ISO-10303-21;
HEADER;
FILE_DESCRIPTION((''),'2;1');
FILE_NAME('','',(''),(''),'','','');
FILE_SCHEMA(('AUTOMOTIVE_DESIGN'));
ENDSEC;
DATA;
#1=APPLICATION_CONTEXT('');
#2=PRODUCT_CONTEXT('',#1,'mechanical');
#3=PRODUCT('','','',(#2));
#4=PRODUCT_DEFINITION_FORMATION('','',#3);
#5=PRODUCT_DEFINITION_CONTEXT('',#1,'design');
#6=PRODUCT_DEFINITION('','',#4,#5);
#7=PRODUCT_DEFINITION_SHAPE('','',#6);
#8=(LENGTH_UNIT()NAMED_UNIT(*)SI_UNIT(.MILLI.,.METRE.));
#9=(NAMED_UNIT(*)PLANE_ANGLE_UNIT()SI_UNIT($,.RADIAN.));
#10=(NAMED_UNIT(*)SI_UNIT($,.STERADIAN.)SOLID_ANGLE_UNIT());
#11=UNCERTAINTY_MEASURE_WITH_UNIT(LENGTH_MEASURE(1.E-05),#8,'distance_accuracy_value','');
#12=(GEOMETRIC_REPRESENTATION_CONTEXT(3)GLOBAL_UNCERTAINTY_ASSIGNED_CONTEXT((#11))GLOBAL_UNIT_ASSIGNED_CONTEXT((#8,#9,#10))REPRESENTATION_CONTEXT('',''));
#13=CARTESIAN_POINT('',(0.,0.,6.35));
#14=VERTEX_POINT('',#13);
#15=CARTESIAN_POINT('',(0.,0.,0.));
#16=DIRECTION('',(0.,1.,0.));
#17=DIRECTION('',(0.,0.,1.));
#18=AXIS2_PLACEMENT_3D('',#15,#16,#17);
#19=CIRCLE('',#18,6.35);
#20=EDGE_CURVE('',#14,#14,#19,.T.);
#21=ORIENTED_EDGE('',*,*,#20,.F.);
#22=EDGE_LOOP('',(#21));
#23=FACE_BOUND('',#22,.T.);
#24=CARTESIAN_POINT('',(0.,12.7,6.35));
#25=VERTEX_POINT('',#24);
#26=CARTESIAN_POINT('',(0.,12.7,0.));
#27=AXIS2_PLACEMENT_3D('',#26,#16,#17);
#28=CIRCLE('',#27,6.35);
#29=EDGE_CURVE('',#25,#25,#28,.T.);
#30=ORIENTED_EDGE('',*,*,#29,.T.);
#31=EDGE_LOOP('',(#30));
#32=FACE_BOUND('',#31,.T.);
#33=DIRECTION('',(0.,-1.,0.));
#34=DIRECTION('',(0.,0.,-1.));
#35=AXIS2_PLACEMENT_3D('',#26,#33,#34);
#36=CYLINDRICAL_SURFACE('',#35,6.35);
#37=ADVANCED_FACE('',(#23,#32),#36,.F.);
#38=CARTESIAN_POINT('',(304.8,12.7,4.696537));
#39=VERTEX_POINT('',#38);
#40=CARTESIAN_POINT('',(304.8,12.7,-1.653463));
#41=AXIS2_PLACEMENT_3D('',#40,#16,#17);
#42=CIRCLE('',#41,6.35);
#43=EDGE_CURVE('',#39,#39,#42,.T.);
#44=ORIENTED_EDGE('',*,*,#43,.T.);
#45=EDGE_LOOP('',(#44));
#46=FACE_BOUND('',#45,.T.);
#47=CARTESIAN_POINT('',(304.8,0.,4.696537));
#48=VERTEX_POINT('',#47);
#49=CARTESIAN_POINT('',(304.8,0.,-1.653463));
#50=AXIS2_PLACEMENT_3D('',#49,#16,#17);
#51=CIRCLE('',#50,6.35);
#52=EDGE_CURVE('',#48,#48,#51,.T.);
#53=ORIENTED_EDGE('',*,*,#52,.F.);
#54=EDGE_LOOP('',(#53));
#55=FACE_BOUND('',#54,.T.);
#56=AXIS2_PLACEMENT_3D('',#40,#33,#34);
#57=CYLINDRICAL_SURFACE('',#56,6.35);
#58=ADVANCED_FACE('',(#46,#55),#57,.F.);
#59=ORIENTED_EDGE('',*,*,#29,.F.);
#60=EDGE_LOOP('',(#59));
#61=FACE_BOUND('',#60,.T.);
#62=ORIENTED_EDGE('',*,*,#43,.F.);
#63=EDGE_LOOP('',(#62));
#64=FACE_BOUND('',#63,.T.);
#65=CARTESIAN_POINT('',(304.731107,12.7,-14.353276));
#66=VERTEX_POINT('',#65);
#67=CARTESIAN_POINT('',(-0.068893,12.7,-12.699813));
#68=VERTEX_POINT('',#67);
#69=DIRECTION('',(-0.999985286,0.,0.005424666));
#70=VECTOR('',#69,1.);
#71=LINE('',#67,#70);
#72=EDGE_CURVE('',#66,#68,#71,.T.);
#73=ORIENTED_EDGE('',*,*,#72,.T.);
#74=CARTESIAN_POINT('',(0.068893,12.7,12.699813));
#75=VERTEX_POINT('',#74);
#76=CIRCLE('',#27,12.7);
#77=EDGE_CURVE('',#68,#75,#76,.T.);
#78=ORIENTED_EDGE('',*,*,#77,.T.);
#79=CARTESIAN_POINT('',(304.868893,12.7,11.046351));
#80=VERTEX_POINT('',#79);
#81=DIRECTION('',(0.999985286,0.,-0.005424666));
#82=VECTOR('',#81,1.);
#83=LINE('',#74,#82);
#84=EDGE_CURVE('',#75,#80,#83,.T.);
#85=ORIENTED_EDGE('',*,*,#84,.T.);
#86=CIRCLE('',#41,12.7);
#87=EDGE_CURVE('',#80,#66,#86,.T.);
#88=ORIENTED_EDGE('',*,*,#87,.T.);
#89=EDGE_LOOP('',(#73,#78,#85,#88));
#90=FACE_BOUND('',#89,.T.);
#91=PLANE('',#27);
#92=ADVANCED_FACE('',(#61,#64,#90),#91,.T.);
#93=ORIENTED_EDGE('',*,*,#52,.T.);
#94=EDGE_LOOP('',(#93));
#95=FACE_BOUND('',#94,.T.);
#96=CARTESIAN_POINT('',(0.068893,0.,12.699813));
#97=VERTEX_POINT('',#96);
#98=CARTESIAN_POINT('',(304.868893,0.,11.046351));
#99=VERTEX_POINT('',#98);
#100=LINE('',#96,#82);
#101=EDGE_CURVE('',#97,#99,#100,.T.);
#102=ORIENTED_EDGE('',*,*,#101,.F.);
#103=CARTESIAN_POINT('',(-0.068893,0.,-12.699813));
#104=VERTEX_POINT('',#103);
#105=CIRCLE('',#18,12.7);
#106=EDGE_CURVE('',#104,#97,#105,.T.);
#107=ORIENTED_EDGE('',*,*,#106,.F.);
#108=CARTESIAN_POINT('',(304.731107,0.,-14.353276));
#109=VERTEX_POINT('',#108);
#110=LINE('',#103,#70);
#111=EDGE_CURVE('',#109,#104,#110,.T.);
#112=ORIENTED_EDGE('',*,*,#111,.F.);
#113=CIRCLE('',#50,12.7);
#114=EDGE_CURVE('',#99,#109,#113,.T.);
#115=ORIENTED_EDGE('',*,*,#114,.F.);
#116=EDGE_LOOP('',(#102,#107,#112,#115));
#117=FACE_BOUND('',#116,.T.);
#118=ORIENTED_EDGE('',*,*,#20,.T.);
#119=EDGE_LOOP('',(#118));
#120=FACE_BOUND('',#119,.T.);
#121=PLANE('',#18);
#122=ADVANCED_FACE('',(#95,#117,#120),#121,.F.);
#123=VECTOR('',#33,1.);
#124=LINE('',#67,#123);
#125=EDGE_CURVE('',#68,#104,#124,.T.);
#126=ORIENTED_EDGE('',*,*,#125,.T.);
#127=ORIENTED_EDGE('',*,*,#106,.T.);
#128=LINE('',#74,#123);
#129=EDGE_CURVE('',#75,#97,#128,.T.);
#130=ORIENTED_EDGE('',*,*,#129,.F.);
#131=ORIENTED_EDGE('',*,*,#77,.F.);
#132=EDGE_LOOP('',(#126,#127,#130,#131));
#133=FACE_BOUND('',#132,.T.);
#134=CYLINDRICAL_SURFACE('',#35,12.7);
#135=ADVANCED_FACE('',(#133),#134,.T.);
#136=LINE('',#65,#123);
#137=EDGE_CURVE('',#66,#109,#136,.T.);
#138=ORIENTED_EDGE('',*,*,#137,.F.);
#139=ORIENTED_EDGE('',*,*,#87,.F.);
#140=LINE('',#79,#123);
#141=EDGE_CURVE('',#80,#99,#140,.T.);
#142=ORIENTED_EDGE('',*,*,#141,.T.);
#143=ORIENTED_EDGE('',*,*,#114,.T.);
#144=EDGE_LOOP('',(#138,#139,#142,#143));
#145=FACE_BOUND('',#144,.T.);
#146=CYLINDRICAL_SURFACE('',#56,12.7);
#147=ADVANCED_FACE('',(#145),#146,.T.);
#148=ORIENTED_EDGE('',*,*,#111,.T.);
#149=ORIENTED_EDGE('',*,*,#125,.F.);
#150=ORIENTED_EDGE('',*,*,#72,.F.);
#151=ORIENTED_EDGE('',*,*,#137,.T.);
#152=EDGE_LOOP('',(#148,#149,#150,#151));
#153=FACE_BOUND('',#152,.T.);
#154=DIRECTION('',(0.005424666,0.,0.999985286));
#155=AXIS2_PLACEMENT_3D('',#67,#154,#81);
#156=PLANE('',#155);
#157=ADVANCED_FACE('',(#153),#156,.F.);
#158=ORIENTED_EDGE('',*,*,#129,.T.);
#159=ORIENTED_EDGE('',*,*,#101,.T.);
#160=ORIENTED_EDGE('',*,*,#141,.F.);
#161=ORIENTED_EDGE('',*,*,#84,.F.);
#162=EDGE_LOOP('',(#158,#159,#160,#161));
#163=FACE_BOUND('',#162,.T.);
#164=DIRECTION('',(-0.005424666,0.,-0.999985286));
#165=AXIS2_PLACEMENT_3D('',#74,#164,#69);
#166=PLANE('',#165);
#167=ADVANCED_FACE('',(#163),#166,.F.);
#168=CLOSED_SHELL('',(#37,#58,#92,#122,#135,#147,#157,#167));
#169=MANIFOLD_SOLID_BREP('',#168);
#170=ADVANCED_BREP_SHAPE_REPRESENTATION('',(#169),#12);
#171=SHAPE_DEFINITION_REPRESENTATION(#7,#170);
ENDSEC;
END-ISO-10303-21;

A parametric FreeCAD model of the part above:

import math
import FreeCAD as App
import Part
import Sketcher

V = App.Vector
Q = App.Units.Quantity

doc = App.newDocument("Part")
body = doc.addObject("PartDesign::Body", "Body")

sketch1 = body.newObject("Sketcher::SketchObject", "Sketch")
sketch1.AttachmentSupport = (doc.getObject("XZ_Plane"), [""])
sketch1.MapMode = "FlatFace"
sketch1.addGeometry([
    Part.LineSegment(V(305, -14, 0), V(0, -13, 0)),
    Part.ArcOfCircle(Part.Circle(V(0, 0, 0), V(0, 0, 1), 13), math.radians(90), math.radians(270)),
    Part.LineSegment(V(0, 13, 0), V(305, 11, 0)),
    Part.ArcOfCircle(Part.Circle(V(305, -2, 0), V(0, 0, 1), 13), math.radians(-90), math.radians(90)),
    Part.Circle(V(0, 0, 0), V(0, 0, 1), 6),
    Part.Circle(V(305, -2, 0), V(0, 0, 1), 6),
], False)
sketch1.addConstraint([
    Sketcher.Constraint("Tangent", 0, 2, 1, 2),
    Sketcher.Constraint("Tangent", 1, 1, 2, 1),
    Sketcher.Constraint("Tangent", 2, 2, 3, 2),
    Sketcher.Constraint("Tangent", 3, 1, 0, 1),
    Sketcher.Constraint("Coincident", 1, 3, -1, 1),
    Sketcher.Constraint("Coincident", 4, 3, -1, 1),
    Sketcher.Constraint("Coincident", 5, 3, 3, 3),
    Sketcher.Constraint("Equal", 1, 3),
    Sketcher.Constraint("Equal", 4, 5),
    Sketcher.Constraint("Diameter", 4, Q("0.5 in")),
    Sketcher.Constraint("Radius", 1, Q("0.5 in")),
    Sketcher.Constraint("DistanceX", -1, 1, 3, 3, Q("12 in")),
    Sketcher.Constraint("DistanceY", -1, 1, 2, 2, 11.046351),
])
pad1 = body.newObject("PartDesign::Pad", "Pad")
pad1.Profile = sketch1
pad1.Length = Q("0.5 in")
pad1.Reversed = True

doc.recompute()
